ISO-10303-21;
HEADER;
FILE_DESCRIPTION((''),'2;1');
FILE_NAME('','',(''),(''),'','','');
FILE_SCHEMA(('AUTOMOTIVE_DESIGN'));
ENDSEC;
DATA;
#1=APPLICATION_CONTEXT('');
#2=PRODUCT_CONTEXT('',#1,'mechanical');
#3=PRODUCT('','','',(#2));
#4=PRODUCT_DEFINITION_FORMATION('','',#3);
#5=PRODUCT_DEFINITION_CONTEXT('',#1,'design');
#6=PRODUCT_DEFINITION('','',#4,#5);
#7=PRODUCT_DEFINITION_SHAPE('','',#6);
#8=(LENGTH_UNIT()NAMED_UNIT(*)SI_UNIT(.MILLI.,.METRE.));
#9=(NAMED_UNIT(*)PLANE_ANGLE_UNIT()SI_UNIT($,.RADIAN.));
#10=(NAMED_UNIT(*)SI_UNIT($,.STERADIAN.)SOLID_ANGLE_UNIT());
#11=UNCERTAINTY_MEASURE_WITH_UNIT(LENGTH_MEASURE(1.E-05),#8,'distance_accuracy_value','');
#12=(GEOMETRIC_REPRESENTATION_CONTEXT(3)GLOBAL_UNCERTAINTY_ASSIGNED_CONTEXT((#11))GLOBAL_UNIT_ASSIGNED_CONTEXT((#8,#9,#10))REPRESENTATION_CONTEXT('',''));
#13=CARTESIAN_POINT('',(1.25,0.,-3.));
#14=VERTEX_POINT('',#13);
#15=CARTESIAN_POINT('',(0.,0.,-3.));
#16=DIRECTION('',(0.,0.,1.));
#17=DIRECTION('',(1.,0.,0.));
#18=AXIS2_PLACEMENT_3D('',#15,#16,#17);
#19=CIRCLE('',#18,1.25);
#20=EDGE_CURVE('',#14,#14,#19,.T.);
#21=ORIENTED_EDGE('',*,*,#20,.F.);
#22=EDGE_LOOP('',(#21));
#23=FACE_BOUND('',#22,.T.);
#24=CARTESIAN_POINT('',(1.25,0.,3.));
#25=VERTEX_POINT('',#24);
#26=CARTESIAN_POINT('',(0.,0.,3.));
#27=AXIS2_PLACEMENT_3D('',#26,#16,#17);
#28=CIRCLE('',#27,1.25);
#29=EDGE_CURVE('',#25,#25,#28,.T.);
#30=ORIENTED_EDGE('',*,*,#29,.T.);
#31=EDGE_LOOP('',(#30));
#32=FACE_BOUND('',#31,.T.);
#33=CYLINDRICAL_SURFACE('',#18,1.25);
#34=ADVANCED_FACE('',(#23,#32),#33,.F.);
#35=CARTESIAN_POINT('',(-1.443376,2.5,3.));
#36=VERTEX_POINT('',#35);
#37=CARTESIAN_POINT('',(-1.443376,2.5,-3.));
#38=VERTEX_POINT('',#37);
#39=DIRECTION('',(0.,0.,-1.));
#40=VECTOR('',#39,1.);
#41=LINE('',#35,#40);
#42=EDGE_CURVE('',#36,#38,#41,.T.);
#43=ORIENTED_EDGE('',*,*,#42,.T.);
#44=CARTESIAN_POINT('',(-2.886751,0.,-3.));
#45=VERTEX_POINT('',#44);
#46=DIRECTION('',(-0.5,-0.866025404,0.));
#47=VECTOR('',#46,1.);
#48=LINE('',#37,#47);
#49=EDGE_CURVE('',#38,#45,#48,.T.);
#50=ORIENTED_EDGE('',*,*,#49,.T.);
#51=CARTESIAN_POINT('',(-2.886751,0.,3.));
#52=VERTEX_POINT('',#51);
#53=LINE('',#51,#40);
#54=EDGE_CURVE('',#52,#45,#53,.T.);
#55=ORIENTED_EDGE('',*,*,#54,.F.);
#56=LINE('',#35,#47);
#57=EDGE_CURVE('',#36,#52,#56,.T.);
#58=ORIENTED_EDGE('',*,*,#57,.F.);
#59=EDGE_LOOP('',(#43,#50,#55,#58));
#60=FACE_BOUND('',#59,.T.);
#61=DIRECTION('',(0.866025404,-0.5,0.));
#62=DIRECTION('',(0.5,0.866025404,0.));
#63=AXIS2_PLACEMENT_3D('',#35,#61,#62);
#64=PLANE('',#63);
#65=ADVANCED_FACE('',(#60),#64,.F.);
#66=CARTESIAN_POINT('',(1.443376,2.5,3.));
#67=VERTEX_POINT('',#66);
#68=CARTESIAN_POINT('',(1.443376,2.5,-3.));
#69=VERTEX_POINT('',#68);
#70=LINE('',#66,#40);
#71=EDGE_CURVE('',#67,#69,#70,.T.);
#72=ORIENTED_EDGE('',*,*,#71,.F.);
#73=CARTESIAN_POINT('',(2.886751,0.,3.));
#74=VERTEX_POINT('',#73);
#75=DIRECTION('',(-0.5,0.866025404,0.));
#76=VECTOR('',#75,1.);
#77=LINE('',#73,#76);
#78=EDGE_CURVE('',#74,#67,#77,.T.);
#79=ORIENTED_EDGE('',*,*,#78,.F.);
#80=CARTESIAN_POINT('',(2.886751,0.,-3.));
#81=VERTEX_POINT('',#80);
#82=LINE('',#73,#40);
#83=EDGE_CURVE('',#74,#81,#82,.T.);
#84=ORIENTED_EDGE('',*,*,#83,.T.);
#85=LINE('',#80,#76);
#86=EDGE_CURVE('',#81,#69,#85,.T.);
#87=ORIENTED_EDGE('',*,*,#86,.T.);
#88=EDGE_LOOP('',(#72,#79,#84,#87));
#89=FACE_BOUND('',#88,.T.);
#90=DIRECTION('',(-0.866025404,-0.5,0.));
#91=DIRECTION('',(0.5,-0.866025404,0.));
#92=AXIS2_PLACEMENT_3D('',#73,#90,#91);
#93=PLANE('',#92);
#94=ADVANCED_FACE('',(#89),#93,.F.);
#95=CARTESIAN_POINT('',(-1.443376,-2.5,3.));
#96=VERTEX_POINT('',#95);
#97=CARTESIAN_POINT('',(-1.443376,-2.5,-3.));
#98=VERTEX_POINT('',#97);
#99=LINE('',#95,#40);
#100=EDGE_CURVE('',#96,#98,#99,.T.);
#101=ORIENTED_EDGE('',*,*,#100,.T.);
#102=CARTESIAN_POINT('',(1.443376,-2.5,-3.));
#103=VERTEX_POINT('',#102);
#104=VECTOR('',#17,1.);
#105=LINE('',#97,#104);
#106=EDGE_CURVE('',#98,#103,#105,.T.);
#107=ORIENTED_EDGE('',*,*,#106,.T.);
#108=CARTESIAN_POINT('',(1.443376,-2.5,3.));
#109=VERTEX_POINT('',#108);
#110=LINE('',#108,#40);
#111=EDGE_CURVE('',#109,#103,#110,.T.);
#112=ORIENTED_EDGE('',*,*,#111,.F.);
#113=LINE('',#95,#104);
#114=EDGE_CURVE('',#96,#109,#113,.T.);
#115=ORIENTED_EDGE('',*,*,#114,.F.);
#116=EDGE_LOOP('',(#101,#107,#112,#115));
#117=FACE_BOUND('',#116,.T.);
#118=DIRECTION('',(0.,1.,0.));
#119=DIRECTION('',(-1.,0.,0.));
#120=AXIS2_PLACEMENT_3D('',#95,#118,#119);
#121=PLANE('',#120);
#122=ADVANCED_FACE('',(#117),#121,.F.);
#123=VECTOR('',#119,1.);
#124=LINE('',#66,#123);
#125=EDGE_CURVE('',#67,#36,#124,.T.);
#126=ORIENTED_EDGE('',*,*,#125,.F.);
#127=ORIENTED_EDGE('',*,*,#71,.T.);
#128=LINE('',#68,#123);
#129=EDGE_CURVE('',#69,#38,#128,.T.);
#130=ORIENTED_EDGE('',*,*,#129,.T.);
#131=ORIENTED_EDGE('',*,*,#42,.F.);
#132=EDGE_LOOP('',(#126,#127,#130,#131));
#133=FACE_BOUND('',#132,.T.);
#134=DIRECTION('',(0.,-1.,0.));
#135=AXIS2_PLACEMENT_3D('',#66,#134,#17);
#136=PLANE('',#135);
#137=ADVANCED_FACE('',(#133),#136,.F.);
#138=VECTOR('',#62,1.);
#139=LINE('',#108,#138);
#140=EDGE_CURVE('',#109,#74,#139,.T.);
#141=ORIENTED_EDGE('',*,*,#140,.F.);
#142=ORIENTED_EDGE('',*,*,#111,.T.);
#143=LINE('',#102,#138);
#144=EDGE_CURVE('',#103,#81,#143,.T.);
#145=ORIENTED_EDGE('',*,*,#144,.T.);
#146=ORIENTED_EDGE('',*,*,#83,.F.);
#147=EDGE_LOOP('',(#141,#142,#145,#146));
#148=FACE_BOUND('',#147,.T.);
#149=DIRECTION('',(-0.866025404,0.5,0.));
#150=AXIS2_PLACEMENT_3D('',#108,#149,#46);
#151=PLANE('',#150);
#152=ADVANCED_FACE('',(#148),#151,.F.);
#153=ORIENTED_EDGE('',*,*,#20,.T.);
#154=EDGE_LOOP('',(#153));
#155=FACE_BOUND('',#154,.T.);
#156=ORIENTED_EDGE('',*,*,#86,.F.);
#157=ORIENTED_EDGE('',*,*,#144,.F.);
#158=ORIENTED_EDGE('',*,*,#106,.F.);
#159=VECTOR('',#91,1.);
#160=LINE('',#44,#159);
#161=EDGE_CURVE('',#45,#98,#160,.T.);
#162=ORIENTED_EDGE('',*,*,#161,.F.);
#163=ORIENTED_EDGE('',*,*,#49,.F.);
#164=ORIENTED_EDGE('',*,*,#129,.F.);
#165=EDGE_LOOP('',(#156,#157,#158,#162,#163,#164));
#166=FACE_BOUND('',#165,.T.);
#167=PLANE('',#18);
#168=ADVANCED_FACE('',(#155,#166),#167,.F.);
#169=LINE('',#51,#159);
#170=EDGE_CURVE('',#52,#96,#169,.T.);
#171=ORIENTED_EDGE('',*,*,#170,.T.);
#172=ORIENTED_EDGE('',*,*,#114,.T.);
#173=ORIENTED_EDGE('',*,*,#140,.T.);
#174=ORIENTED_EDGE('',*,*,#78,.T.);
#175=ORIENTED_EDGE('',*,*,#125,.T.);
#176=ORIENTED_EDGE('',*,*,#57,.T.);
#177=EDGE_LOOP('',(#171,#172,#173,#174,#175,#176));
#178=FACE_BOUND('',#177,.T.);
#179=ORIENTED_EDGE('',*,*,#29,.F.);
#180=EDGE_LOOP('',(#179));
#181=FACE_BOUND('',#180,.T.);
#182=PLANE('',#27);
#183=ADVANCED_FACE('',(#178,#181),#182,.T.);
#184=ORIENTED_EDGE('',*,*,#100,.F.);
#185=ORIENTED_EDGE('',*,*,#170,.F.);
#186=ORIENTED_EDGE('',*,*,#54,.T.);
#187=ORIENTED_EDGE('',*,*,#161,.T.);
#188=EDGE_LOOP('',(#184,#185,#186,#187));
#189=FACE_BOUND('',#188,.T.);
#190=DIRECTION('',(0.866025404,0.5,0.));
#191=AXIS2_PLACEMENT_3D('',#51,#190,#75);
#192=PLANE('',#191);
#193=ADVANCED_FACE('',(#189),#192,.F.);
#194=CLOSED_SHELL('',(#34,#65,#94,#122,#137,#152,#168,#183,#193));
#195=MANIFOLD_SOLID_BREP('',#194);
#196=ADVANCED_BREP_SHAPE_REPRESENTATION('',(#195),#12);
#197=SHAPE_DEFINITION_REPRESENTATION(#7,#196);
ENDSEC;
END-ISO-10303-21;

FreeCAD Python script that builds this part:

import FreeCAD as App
import Part
import Sketcher
Q = App.Units.Quantity

doc = App.newDocument("Part")
body = doc.addObject("PartDesign::Body", "Body")

sketch1 = doc.addObject("Sketcher::SketchObject", "Sketch")
body.addObject(sketch1)
sketch1.AttachmentSupport = (doc.XY_Plane, [""])
sketch1.MapMode = "FlatFace"
sketch1.addGeometry(Part.LineSegment(App.Vector(1.443376, 2.5, 0), App.Vector(-1.443376, 2.5, 0)), False)
sketch1.addGeometry(Part.LineSegment(App.Vector(-1.443376, 2.5, 0), App.Vector(-2.886751, 0, 0)), False)
sketch1.addGeometry(Part.LineSegment(App.Vector(-2.886751, 0, 0), App.Vector(-1.443376, -2.5, 0)), False)
sketch1.addGeometry(Part.LineSegment(App.Vector(-1.443376, -2.5, 0), App.Vector(1.443376, -2.5, 0)), False)
sketch1.addGeometry(Part.LineSegment(App.Vector(1.443376, -2.5, 0), App.Vector(2.886751, 0, 0)), False)
sketch1.addGeometry(Part.LineSegment(App.Vector(2.886751, 0, 0), App.Vector(1.443376, 2.5, 0)), False)
sketch1.addConstraint(Sketcher.Constraint("Coincident", 0, 2, 1, 1))
sketch1.addConstraint(Sketcher.Constraint("Coincident", 1, 2, 2, 1))
sketch1.addConstraint(Sketcher.Constraint("Coincident", 2, 2, 3, 1))
sketch1.addConstraint(Sketcher.Constraint("Coincident", 3, 2, 4, 1))
sketch1.addConstraint(Sketcher.Constraint("Coincident", 4, 2, 5, 1))
sketch1.addConstraint(Sketcher.Constraint("Coincident", 5, 2, 0, 1))
sketch1.addConstraint(Sketcher.Constraint("Horizontal", 0))
sketch1.addConstraint(Sketcher.Constraint("Horizontal", 3))
sketch1.addConstraint(Sketcher.Constraint("Symmetric", 0, 2, 3, 2, -1, 1))
sketch1.addConstraint(Sketcher.Constraint("Symmetric", 1, 2, 4, 2, -1, 1))
sketch1.addConstraint(Sketcher.Constraint("PointOnObject", 1, 2, -1))
sketch1.addConstraint(Sketcher.Constraint("Parallel", 2, 5))
sketch1.addConstraint(Sketcher.Constraint("Vertical", 0, 2, 2, 2))
sketch1.addConstraint(Sketcher.Constraint("Angle", 1, Q("-120 deg")))
sketch1.addConstraint(Sketcher.Constraint("DistanceY", 2, 2, 0, 2, 5.0))
sketch1.addConstraint(Sketcher.Constraint("DistanceX", 0, 2, 0, 1, 2.886751))
pad1 = doc.addObject("PartDesign::Pad", "Pad")
body.addObject(pad1)
pad1.Profile = sketch1
pad1.Length = 6
pad1.Midplane = True

sketch2 = doc.addObject("Sketcher::SketchObject", "Sketch001")
body.addObject(sketch2)
sketch2.AttachmentSupport = (doc.XY_Plane, [""])
sketch2.MapMode = "FlatFace"
sketch2.AttachmentOffset = App.Placement(App.Vector(0, 0, 3), App.Rotation())
sketch2.addGeometry(Part.Circle(App.Vector(0, 0, 0), App.Vector(0, 0, 1), 1.25), False)
sketch2.addConstraint(Sketcher.Constraint("Coincident", 0, 3, -1, 1))
sketch2.addConstraint(Sketcher.Constraint("Diameter", 0, 2.5))
pocket1 = doc.addObject("PartDesign::Pocket", "Pocket")
body.addObject(pocket1)
pocket1.Profile = sketch2
pocket1.Type = "ThroughAll"

doc.recompute()
